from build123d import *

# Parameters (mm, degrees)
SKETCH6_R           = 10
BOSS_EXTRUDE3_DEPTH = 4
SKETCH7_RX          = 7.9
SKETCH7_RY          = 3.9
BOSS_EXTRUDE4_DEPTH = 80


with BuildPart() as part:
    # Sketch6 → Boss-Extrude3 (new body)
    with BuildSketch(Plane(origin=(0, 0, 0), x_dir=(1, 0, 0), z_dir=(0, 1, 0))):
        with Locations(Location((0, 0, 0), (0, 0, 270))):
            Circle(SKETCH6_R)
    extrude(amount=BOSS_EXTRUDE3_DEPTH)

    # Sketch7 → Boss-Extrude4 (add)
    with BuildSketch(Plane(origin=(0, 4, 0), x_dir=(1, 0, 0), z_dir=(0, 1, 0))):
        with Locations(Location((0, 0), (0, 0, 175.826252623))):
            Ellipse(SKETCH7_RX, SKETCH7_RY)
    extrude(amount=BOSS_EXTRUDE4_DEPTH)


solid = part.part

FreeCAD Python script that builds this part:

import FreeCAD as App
import Part
import Sketcher
from FreeCAD import Vector

doc = App.newDocument("Part")
body = doc.addObject("PartDesign::Body", "Body")

# Sketch on XZ plane
sketch1 = body.newObject("Sketcher::SketchObject", "Sketch")
sketch1.AttachmentSupport = (doc.getObject("XZ_Plane"), [""])
sketch1.MapMode = "FlatFace"
sketch1.addGeometry(Part.Circle(Vector(0, 0, 0), Vector(0, 0, 1), 10), False)
sketch1.addConstraint([
    Sketcher.Constraint("Coincident", 0, 3, -1, 1),
    Sketcher.Constraint("Diameter", 0, 20.0),
])
pad1 = body.newObject("PartDesign::Pad", "Pad")
pad1.Profile = sketch1
pad1.Length = 4
pad1.Reversed = True

# Sketch on XZ plane
sketch2 = body.newObject("Sketcher::SketchObject", "Sketch001")
sketch2.AttachmentSupport = (doc.getObject("XZ_Plane"), [""])
sketch2.MapMode = "FlatFace"
sketch2.AttachmentOffset = App.Placement(Vector(0, 0, -4), App.Rotation())
sketch2.addGeometry(Part.Ellipse(Vector(-7.879049, -0.574972, 0), Vector(0.283847, -3.889657, 0), Vector(0, 0, 0)), False)
sketch2.addConstraint(Sketcher.Constraint("Block", 0))
pad2 = body.newObject("PartDesign::Pad", "Pad001")
pad2.Profile = sketch2
pad2.Length = 80
pad2.Reversed = True

doc.recompute()
